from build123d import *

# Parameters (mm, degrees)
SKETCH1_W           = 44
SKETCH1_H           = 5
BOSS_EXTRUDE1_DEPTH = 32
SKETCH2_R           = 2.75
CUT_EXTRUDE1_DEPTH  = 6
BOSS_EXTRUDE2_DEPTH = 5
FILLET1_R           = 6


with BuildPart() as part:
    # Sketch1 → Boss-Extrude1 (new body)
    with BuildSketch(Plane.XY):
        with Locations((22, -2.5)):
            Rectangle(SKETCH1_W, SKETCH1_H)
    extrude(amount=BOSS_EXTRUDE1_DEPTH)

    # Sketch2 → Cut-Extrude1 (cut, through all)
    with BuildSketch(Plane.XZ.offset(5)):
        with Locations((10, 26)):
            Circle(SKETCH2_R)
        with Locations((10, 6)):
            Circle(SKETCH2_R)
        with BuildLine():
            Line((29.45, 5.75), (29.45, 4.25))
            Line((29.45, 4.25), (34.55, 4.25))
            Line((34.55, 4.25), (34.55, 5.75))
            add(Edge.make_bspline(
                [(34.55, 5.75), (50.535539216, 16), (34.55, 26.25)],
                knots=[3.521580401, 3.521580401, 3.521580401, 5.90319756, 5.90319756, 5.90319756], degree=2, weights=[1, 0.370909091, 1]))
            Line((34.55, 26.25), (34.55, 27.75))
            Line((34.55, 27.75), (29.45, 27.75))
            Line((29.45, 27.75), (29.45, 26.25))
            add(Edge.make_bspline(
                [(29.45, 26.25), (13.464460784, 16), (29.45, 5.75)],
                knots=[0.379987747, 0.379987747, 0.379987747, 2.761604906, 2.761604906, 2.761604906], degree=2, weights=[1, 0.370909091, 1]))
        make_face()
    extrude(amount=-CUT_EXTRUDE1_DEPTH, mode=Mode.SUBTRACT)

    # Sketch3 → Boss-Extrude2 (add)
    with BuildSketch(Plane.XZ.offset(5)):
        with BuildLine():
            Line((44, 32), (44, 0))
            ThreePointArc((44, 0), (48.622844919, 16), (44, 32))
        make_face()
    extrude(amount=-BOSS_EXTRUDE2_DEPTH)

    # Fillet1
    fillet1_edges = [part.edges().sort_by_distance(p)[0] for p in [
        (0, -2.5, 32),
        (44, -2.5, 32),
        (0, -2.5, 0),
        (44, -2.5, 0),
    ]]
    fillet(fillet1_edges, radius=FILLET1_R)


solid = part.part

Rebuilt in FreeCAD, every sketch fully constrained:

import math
import FreeCAD as App
import Part
import Sketcher
from FreeCAD import Vector


def edges_at(feature, points):
    """Names of the edges that pass closest to the given points."""
    edges = feature.Shape.Edges
    near = lambda p: min(range(len(edges)), key=lambda i: edges[i].distToShape(Part.Vertex(*p))[0])
    return sorted({f"Edge{near(p) + 1}" for p in points})

doc = App.newDocument("Part")
body = doc.addObject("PartDesign::Body", "Body")

# Sketch on XY plane
sketch1 = body.newObject("Sketcher::SketchObject", "Sketch")
sketch1.AttachmentSupport = (doc.getObject("XY_Plane"), [""])
sketch1.MapMode = "FlatFace"
sketch1.addGeometry([
    Part.LineSegment(Vector(0, 0, 0), Vector(0, -5, 0)),
    Part.LineSegment(Vector(0, -5, 0), Vector(44, -5, 0)),
    Part.LineSegment(Vector(44, -5, 0), Vector(44, 0, 0)),
    Part.LineSegment(Vector(44, 0, 0), Vector(0, 0, 0)),
], False)
sketch1.addConstraint([
    Sketcher.Constraint("Coincident", 0, 2, 1, 1),
    Sketcher.Constraint("Coincident", 1, 2, 2, 1),
    Sketcher.Constraint("Coincident", 2, 2, 3, 1),
    Sketcher.Constraint("Coincident", 3, 2, 0, 1),
    Sketcher.Constraint("Vertical", 0),
    Sketcher.Constraint("Horizontal", 1),
    Sketcher.Constraint("Vertical", 2),
    Sketcher.Constraint("Horizontal", 3),
    Sketcher.Constraint("Coincident", 3, 2, -1, 1),
    Sketcher.Constraint("DistanceX", 1, 1, 1, 2, 44.0),
    Sketcher.Constraint("DistanceY", 0, 2, 0, 1, 5.0),
])
pad1 = body.newObject("PartDesign::Pad", "Pad")
pad1.Profile = sketch1
pad1.Length = 32

# Sketch on XZ plane
sketch2 = body.newObject("Sketcher::SketchObject", "Sketch001")
sketch2.AttachmentSupport = (doc.getObject("XZ_Plane"), [""])
sketch2.MapMode = "FlatFace"
sketch2.AttachmentOffset = App.Placement(Vector(0, 0, 5), App.Rotation())
sketch2.addGeometry([
    Part.Circle(Vector(10, 26, 0), Vector(0, 0, 1), 2.75),  # 0
    Part.Circle(Vector(10, 6, 0), Vector(0, 0, 1), 2.75),  # 1
    Part.LineSegment(Vector(29.45, 5.75, 0), Vector(29.45, 4.25, 0)),  # 2
    Part.LineSegment(Vector(29.45, 4.25, 0), Vector(34.55, 4.25, 0)),  # 3
    Part.LineSegment(Vector(34.55, 4.25, 0), Vector(34.55, 5.75, 0)),  # 4
    Part.BSplineCurve([Vector(34.55, 5.75, 0), Vector(50.535539, 16, 0), Vector(34.55, 26.25, 0)], [3, 3], [3.521580401, 5.90319756], False, 2, [1, 0.370909091, 1], False),  # 5
    Part.LineSegment(Vector(34.55, 26.25, 0), Vector(34.55, 27.75, 0)),  # 6
    Part.LineSegment(Vector(34.55, 27.75, 0), Vector(29.45, 27.75, 0)),  # 7
    Part.LineSegment(Vector(29.45, 27.75, 0), Vector(29.45, 26.25, 0)),  # 8
    Part.BSplineCurve([Vector(29.45, 26.25, 0), Vector(13.464461, 16, 0), Vector(29.45, 5.75, 0)], [3, 3], [0.379987747, 2.761604906], False, 2, [1, 0.370909091, 1], False),  # 9
], False)
sketch2.addConstraint([
    Sketcher.Constraint("Block", 5),
    Sketcher.Constraint("Block", 9),
    Sketcher.Constraint("Coincident", 2, 2, 3, 1),
    Sketcher.Constraint("Coincident", 3, 2, 4, 1),
    Sketcher.Constraint("Coincident", 4, 2, 5, 1),
    Sketcher.Constraint("Coincident", 5, 2, 6, 1),
    Sketcher.Constraint("Coincident", 6, 2, 7, 1),
    Sketcher.Constraint("Coincident", 7, 2, 8, 1),
    Sketcher.Constraint("Coincident", 8, 2, 9, 1),
    Sketcher.Constraint("Coincident", 9, 2, 2, 1),
    Sketcher.Constraint("Vertical", 2),
    Sketcher.Constraint("Horizontal", 3),
    Sketcher.Constraint("Vertical", 4),
    Sketcher.Constraint("Vertical", 6),
    Sketcher.Constraint("Horizontal", 7),
    Sketcher.Constraint("Vertical", 8),
    Sketcher.Constraint("Diameter", 0, 5.5),
    Sketcher.Constraint("Diameter", 1, 5.5),
    Sketcher.Constraint("DistanceY", 2, 2, 2, 1, 1.5),
    Sketcher.Constraint("DistanceY", 6, 1, 6, 2, 1.5),
    Sketcher.Constraint("DistanceX", -1, 1, 0, 3, 10.0),
    Sketcher.Constraint("DistanceY", -1, 1, 0, 3, 26.0),
    Sketcher.Constraint("DistanceX", -1, 1, 1, 3, 10.0),
    Sketcher.Constraint("DistanceY", -1, 1, 1, 3, 6.0),
])
pocket1 = body.newObject("PartDesign::Pocket", "Pocket")
pocket1.Profile = sketch2
pocket1.Type = "ThroughAll"

# Sketch on XZ plane
sketch3 = body.newObject("Sketcher::SketchObject", "Sketch002")
sketch3.AttachmentSupport = (doc.getObject("XZ_Plane"), [""])
sketch3.MapMode = "FlatFace"
sketch3.AttachmentOffset = App.Placement(Vector(0, 0, 5), App.Rotation())
sketch3.addGeometry([
    Part.LineSegment(Vector(44, 32, 0), Vector(44, 0, 0)),
    Part.ArcOfCircle(Part.Circle(Vector(19, 16, 0), Vector(0, 0, 1), 30), math.radians(-32), math.radians(32)),
], False)
sketch3.addConstraint([
    Sketcher.Constraint("Coincident", 0, 1, 1, 2),
    Sketcher.Constraint("Coincident", 1, 1, 0, 2),
    Sketcher.Constraint("Vertical", 0),
    Sketcher.Constraint("PointOnObject", 1, 1, -1),
    Sketcher.Constraint("Radius", 1, 30.0),
    Sketcher.Constraint("DistanceY", 0, 2, 0, 1, 32.0),
    Sketcher.Constraint("DistanceX", -1, 1, 0, 1, 44.0),
])
pad2 = body.newObject("PartDesign::Pad", "Pad001")
pad2.Profile = sketch3
pad2.Length = 5
pad2.Reversed = True
doc.recompute()

fillet = body.newObject("PartDesign::Fillet", "Fillet")
fillet.Base = (pad2, edges_at(pad2, [
    (0, -2.5, 32),
    (44, -2.5, 32),
    (0, -2.5, 0),
    (44, -2.5, 0),
]))
fillet.Radius = 6

doc.recompute()
